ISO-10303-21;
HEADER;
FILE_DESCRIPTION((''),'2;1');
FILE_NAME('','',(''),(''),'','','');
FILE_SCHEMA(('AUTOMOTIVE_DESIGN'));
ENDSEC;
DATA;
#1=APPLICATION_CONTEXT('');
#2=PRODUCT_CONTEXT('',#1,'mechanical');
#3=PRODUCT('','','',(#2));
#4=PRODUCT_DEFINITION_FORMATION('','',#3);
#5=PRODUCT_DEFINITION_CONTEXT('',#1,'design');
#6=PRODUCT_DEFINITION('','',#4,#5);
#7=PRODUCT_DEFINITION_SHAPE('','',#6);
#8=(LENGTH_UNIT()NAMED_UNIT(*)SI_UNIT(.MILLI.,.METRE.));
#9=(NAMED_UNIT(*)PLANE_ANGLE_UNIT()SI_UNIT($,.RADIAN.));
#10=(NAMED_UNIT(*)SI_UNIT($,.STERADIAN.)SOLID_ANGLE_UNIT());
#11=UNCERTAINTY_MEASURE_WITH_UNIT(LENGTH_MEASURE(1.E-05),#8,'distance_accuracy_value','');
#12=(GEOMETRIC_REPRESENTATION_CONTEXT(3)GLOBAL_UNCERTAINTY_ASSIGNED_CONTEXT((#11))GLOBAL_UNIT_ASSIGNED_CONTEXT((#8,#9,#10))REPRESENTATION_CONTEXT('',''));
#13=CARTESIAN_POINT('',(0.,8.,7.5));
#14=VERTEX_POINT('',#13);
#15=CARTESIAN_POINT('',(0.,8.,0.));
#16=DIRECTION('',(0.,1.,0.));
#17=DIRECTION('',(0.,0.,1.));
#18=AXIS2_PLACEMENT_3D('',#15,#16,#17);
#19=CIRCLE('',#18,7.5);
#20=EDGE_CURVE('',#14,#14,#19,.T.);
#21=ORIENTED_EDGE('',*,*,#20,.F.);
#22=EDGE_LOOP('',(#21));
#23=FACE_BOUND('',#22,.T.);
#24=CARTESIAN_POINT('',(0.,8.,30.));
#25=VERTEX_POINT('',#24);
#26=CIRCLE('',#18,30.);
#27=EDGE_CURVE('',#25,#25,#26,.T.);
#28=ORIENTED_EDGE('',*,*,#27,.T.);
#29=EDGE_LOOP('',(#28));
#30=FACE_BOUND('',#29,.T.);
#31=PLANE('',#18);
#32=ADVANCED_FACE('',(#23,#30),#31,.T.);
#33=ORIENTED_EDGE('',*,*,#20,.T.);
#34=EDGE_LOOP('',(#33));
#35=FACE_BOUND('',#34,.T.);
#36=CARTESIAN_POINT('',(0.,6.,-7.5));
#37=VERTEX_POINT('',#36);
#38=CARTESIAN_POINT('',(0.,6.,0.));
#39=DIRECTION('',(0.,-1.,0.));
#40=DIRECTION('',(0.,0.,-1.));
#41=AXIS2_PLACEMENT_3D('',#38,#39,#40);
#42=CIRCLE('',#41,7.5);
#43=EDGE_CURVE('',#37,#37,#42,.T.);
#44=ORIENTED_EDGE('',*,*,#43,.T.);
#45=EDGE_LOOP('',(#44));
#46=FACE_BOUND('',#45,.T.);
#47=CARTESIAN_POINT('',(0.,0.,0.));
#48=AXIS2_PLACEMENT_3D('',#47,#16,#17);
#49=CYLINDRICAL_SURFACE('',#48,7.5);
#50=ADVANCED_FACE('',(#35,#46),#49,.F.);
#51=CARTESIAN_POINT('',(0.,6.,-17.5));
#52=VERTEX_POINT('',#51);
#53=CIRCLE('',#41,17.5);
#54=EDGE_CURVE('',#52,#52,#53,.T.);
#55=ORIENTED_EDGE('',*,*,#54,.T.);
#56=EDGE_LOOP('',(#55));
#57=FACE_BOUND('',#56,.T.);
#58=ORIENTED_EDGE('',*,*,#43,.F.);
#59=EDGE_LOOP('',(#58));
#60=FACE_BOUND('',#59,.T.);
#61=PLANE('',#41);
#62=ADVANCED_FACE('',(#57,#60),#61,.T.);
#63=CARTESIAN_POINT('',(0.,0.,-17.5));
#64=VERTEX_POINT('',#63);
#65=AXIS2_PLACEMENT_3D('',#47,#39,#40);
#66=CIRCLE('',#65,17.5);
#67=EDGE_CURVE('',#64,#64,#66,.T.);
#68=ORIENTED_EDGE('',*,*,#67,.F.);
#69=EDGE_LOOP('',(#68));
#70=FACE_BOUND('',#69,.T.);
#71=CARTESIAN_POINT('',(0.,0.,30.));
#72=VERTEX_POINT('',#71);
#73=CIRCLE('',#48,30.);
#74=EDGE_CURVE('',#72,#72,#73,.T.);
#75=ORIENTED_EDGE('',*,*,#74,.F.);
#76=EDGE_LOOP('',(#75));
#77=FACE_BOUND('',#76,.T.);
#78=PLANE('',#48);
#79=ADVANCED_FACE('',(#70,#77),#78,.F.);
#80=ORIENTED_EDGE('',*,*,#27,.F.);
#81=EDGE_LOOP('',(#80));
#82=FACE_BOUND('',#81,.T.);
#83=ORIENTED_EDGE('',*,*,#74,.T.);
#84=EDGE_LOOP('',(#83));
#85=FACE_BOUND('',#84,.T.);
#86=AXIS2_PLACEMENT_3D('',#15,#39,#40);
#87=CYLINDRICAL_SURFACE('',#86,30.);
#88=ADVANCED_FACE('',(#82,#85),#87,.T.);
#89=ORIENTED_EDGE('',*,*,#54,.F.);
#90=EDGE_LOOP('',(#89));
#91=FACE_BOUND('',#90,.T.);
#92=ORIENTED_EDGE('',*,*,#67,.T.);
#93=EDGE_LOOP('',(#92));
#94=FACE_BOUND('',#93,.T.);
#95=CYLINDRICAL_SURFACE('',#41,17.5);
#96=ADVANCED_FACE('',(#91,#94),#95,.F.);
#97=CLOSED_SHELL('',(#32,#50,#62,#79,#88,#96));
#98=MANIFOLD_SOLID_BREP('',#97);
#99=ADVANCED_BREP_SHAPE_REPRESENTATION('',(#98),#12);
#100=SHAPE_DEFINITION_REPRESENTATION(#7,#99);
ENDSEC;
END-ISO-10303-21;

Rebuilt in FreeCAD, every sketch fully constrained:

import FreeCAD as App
import Part
import Sketcher
Q = App.Units.Quantity

doc = App.newDocument("Part")
body = doc.addObject("PartDesign::Body", "Body")

# Sketch on XZ plane
sketch1 = body.newObject("Sketcher::SketchObject", "Sketch")
sketch1.AttachmentSupport = (doc.getObject("XZ_Plane"), [""])
sketch1.MapMode = "FlatFace"
sketch1.addGeometry(Part.Circle(App.Vector(0, 0, 0), App.Vector(0, 0, 1), 30), False)
sketch1.addConstraint(Sketcher.Constraint("Coincident", 0, 3, -1, 1))
sketch1.addConstraint(Sketcher.Constraint("Diameter", 0, Q("60 mm")))
pad1 = body.newObject("PartDesign::Pad", "Pad")
pad1.Profile = sketch1
pad1.Length = 8
pad1.Reversed = True

# Sketch on XZ plane
sketch2 = body.newObject("Sketcher::SketchObject", "Sketch001")
sketch2.AttachmentSupport = (doc.getObject("XZ_Plane"), [""])
sketch2.MapMode = "FlatFace"
sketch2.addGeometry(Part.Circle(App.Vector(0, 0, 0), App.Vector(0, 0, 1), 18), False)
sketch2.addConstraint(Sketcher.Constraint("Coincident", 0, 3, -1, 1))
sketch2.addConstraint(Sketcher.Constraint("Diameter", 0, Q("35 mm")))
pocket1 = body.newObject("PartDesign::Pocket", "Pocket")
pocket1.Profile = sketch2
pocket1.Length = 6

# Sketch on XZ plane
sketch3 = body.newObject("Sketcher::SketchObject", "Sketch002")
sketch3.AttachmentSupport = (doc.getObject("XZ_Plane"), [""])
sketch3.MapMode = "FlatFace"
sketch3.AttachmentOffset = App.Placement(App.Vector(0, 0, -8), App.Rotation())
sketch3.addGeometry(Part.Circle(App.Vector(0, 0, 0), App.Vector(0, 0, 1), 8), False)
sketch3.addConstraint(Sketcher.Constraint("Coincident", 0, 3, -1, 1))
sketch3.addConstraint(Sketcher.Constraint("Diameter", 0, Q("15 mm")))
pocket2 = body.newObject("PartDesign::Pocket", "Pocket001")
pocket2.Profile = sketch3
pocket2.Type = "ThroughAll"
pocket2.Reversed = True

doc.recompute()
